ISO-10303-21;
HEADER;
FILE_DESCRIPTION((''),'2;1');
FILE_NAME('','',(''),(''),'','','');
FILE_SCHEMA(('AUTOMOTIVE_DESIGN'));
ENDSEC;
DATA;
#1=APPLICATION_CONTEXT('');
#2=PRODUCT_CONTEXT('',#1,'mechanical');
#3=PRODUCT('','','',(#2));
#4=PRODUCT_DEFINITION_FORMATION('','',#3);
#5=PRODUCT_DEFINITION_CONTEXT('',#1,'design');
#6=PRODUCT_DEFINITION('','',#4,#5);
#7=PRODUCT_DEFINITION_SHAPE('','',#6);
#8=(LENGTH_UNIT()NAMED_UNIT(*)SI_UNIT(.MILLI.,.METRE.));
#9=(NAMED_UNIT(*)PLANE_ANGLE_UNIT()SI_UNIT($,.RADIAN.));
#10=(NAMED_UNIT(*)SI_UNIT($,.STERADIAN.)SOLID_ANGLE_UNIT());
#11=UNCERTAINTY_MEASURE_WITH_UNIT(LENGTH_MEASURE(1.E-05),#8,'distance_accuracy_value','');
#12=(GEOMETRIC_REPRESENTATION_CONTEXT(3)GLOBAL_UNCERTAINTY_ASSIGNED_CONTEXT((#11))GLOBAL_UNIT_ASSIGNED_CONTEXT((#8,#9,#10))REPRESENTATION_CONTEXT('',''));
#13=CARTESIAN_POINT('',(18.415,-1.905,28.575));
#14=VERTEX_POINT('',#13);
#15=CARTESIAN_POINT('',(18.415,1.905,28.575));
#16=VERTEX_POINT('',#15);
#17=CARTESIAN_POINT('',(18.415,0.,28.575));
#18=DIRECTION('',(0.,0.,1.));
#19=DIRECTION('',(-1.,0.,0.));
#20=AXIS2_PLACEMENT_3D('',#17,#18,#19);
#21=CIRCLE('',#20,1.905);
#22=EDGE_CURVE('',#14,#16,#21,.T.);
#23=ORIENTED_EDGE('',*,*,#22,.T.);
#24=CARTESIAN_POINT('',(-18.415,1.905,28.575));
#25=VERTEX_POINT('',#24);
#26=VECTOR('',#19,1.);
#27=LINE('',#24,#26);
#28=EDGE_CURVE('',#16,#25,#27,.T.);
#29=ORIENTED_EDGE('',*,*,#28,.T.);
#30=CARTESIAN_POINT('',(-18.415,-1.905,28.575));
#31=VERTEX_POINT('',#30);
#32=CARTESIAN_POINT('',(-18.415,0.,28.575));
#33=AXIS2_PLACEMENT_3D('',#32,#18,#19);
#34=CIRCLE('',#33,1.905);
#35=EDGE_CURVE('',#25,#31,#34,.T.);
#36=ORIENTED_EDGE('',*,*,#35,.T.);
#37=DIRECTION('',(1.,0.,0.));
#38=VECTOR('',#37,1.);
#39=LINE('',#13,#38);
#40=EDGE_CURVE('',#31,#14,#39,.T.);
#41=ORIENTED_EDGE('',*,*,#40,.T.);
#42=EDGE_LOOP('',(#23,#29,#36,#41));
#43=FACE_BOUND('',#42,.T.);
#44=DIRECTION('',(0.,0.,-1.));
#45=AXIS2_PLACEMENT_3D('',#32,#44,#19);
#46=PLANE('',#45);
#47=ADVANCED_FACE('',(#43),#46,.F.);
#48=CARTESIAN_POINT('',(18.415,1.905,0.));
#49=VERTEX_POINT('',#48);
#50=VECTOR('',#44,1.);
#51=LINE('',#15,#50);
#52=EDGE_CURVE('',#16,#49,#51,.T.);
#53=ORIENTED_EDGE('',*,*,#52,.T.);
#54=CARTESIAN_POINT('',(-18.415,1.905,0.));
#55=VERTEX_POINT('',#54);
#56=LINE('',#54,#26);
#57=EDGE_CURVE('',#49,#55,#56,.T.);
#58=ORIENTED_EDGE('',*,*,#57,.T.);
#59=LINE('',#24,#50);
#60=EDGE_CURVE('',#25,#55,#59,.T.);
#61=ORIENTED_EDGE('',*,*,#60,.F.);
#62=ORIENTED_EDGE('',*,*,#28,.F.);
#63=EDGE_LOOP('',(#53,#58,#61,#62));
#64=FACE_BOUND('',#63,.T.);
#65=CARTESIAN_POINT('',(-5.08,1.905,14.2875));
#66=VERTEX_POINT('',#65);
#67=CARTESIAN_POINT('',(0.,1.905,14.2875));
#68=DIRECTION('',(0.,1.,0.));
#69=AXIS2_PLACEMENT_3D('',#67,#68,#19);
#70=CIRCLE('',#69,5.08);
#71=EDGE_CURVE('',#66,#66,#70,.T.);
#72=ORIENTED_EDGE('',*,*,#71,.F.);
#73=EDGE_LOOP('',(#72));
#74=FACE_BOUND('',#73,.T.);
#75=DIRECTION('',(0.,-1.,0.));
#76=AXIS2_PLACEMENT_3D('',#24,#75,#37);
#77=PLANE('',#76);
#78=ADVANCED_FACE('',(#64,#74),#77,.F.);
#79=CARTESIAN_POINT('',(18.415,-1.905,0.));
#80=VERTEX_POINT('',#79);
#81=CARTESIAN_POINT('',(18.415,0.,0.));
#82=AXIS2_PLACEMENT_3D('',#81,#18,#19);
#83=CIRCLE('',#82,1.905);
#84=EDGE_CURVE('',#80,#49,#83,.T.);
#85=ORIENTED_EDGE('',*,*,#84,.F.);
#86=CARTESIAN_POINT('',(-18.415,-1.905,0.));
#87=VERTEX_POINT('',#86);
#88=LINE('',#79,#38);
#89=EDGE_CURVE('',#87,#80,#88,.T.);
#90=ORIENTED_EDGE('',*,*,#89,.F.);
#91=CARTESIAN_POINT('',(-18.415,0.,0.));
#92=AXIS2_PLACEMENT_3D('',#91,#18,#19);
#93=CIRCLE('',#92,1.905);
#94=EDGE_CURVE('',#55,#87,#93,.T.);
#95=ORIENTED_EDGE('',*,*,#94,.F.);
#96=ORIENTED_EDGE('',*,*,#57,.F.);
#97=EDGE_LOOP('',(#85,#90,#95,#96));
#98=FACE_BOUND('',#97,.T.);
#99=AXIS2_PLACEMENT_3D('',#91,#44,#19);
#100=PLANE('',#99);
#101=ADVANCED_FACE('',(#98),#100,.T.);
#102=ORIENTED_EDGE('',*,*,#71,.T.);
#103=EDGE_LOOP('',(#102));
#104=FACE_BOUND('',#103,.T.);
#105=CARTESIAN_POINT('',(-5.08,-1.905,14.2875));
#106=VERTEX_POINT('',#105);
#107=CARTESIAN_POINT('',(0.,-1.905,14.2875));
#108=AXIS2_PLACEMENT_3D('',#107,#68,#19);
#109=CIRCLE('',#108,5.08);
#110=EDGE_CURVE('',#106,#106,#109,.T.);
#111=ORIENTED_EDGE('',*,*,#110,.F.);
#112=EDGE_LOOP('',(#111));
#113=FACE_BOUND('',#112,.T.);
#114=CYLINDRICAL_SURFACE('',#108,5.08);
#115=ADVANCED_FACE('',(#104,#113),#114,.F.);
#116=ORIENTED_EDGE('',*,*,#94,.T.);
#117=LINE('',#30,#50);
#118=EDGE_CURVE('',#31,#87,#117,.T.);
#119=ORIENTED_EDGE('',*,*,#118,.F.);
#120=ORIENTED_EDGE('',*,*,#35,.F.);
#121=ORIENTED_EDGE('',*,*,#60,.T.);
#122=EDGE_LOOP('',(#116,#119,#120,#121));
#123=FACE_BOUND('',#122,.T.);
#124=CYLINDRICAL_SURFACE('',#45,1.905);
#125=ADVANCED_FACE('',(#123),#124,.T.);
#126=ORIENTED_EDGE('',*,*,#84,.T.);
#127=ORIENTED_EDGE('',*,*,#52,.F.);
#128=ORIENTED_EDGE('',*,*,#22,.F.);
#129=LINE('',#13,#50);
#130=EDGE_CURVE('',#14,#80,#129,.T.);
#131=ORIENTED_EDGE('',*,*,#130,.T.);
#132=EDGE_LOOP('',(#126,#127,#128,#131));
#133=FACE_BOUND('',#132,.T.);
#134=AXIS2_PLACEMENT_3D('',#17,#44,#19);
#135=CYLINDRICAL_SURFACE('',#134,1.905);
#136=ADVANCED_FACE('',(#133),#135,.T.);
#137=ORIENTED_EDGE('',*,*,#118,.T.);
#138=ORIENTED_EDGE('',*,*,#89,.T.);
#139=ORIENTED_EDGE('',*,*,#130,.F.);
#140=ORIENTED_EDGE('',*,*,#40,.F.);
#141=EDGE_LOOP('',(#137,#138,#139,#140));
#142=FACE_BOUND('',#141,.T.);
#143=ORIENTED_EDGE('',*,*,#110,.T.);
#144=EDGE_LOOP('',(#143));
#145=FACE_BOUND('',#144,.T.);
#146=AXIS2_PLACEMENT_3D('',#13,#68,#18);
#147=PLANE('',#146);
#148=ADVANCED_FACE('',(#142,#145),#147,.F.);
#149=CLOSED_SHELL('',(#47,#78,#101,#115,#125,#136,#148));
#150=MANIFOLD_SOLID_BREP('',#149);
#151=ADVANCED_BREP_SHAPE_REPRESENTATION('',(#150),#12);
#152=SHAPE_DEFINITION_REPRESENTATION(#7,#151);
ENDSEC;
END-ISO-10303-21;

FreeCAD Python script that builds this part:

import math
import FreeCAD as App
import Part
import Sketcher
from FreeCAD import Vector
Q = App.Units.Quantity

doc = App.newDocument("Part")
body = doc.addObject("PartDesign::Body", "Body")

# Sketch on XY plane
sketch1 = doc.addObject("Sketcher::SketchObject", "Sketch")
body.addObject(sketch1)
sketch1.AttachmentSupport = (doc.XY_Plane, [""])
sketch1.MapMode = "FlatFace"
sketch1.addGeometry(Part.LineSegment(Vector(18.4, 1.9, 0), Vector(-18.4, 1.9, 0)), False)
sketch1.addGeometry(Part.ArcOfCircle(Part.Circle(Vector(-18.4, 0, 0), Vector(0, 0, 1), 1.9), math.radians(90), math.radians(270)), False)
sketch1.addGeometry(Part.LineSegment(Vector(-18.4, -1.9, 0), Vector(18.4, -1.9, 0)), False)
sketch1.addGeometry(Part.ArcOfCircle(Part.Circle(Vector(18.4, 0, 0), Vector(0, 0, 1), 1.9), math.radians(-90), math.radians(90)), False)
sketch1.addConstraint(Sketcher.Constraint("Tangent", 0, 2, 1, 1))
sketch1.addConstraint(Sketcher.Constraint("Tangent", 1, 2, 2, 1))
sketch1.addConstraint(Sketcher.Constraint("Tangent", 2, 2, 3, 1))
sketch1.addConstraint(Sketcher.Constraint("Tangent", 3, 2, 0, 1))
sketch1.addConstraint(Sketcher.Constraint("Horizontal", 0))
sketch1.addConstraint(Sketcher.Constraint("Horizontal", 2))
sketch1.addConstraint(Sketcher.Constraint("Symmetric", 1, 3, 3, 3, -1, 1))
sketch1.addConstraint(Sketcher.Constraint("Radius", 1, Q("0.075 in")))
sketch1.addConstraint(Sketcher.Constraint("DistanceX", 0, 2, 0, 1, Q("1.45 in")))
pad1 = doc.addObject("PartDesign::Pad", "Pad")
body.addObject(pad1)
pad1.Profile = sketch1
pad1.Length = Q("1.125 in")

# Sketch on XZ plane
sketch2 = doc.addObject("Sketcher::SketchObject", "Sketch001")
body.addObject(sketch2)
sketch2.AttachmentSupport = (doc.XZ_Plane, [""])
sketch2.MapMode = "FlatFace"
sketch2.AttachmentOffset = App.Placement(Vector(0, 0, -0.075 * 25.4), App.Rotation())
sketch2.addGeometry(Part.Circle(Vector(0, 14, 0), Vector(0, 0, 1), 5), False)
sketch2.addConstraint(Sketcher.Constraint("PointOnObject", 0, 3, -2))
sketch2.addConstraint(Sketcher.Constraint("Diameter", 0, Q("0.4 in")))
sketch2.addConstraint(Sketcher.Constraint("DistanceY", -1, 1, 0, 3, Q("0.5625 in")))
pocket1 = doc.addObject("PartDesign::Pocket", "Pocket")
body.addObject(pocket1)
pocket1.Profile = sketch2
pocket1.Type = "ThroughAll"
pocket1.Reversed = True

doc.recompute()
